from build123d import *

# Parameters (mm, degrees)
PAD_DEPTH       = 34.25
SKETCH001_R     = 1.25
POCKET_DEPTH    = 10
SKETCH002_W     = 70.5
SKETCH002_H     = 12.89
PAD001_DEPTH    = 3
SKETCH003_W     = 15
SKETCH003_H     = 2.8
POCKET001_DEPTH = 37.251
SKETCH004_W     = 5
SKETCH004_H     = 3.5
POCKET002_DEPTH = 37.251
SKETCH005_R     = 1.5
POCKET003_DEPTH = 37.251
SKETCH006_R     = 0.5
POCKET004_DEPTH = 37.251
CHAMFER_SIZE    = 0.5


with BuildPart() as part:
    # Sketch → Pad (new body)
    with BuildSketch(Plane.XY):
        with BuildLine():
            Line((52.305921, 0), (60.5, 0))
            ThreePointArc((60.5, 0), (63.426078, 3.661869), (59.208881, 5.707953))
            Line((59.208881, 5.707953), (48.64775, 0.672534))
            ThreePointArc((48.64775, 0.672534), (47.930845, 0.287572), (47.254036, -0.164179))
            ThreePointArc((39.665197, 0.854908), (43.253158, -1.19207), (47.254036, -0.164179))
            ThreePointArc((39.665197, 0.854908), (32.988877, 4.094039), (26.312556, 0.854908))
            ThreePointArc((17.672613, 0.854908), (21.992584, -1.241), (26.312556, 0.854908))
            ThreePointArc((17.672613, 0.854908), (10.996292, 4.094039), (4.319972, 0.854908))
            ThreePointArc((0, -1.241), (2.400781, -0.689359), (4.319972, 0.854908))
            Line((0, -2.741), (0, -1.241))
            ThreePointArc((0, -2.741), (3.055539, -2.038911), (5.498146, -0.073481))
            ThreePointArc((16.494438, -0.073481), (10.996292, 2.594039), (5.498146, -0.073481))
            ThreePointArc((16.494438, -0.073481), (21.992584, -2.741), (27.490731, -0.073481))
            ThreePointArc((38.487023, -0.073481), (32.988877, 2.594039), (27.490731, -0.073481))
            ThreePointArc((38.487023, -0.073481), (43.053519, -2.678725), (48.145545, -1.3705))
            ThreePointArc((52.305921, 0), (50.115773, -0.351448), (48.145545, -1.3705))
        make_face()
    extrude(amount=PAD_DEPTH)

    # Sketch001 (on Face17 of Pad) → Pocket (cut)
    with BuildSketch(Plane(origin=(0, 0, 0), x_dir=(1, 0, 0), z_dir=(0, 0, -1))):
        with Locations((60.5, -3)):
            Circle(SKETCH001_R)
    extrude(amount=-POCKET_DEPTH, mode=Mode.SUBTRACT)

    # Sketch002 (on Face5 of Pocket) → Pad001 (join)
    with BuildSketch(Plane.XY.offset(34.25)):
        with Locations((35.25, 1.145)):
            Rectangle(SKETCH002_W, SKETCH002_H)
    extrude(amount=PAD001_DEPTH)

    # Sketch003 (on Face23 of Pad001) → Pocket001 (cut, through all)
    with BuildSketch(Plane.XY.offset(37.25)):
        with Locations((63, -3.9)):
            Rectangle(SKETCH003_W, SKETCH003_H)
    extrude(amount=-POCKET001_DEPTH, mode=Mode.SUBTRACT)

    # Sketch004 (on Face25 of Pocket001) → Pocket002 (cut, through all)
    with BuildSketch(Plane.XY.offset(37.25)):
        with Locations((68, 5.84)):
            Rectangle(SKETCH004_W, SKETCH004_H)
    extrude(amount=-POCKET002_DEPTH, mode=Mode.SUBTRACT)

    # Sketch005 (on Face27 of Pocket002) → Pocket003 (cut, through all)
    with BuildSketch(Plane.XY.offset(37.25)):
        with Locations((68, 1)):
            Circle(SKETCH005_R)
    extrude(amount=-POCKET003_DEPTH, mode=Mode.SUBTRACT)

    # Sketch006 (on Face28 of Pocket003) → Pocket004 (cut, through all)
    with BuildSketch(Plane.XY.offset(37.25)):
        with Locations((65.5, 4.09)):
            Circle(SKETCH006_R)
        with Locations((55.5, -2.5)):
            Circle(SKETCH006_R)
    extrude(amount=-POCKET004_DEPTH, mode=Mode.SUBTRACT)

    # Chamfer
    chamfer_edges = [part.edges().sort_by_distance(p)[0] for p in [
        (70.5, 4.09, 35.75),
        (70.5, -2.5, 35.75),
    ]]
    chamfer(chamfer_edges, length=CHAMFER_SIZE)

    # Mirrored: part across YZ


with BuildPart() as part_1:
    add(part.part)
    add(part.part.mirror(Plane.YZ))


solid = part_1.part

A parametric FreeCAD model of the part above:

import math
import FreeCAD as App
import Part
import Sketcher


def edges_at(feature, points):
    """Names of the edges that pass closest to the given points."""
    edges = feature.Shape.Edges
    near = lambda p: min(range(len(edges)), key=lambda i: edges[i].distToShape(Part.Vertex(*p))[0])
    return sorted({f"Edge{near(p) + 1}" for p in points})


def add_polygon(sketch, points):
    """Adds a closed chain of lines whose ends are joined by coincident constraints."""
    first, n = sketch.GeometryCount, len(points)
    for a, b in zip(points, points[1:] + points[:1]):
        sketch.addGeometry(Part.LineSegment(App.Vector(*a, 0), App.Vector(*b, 0)), False)
    for i in range(n):
        sketch.addConstraint(Sketcher.Constraint("Coincident", first + i, 2, first + (i + 1) % n, 1))

doc = App.newDocument("Part")
body = doc.addObject("PartDesign::Body", "Body")

# Sketch on XY plane
sketch1 = body.newObject("Sketcher::SketchObject", "Sketch")
sketch1.AttachmentSupport = (doc.getObject("XY_Plane"), [""])
sketch1.MapMode = "FlatFace"
sketch1.addGeometry([
    Part.LineSegment(App.Vector(52.3, 0, 0), App.Vector(60.5, 0, 0)),  # 0
    Part.ArcOfCircle(Part.Circle(App.Vector(60.5, 3, 0), App.Vector(0, 0, 1), 3), math.radians(-90), math.radians(115)),  # 1
    Part.LineSegment(App.Vector(59.2, 5.7, 0), App.Vector(48.6, 0.7, 0)),  # 2
    Part.ArcOfCircle(Part.Circle(App.Vector(52.3, -7, 0), App.Vector(0, 0, 1), 8.5), math.radians(115.49), math.radians(126.47)),  # 3
    Part.ArcOfCircle(Part.Circle(App.Vector(44, 4.3, 0), App.Vector(0, 0, 1), 5.5), math.radians(-142), math.radians(-54)),  # 4
    Part.ArcOfCircle(Part.Circle(App.Vector(33, -4.4, 0), App.Vector(0, 0, 1), 8.5), math.radians(38), math.radians(142)),  # 5
    Part.ArcOfCircle(Part.Circle(App.Vector(22, 4.3, 0), App.Vector(0, 0, 1), 5.5), math.radians(-142), math.radians(-38)),  # 6
    Part.ArcOfCircle(Part.Circle(App.Vector(11, -4.4, 0), App.Vector(0, 0, 1), 8.5), math.radians(38), math.radians(142)),  # 7
    Part.ArcOfCircle(Part.Circle(App.Vector(0, 4.3, 0), App.Vector(0, 0, 1), 5.5), math.radians(-90), math.radians(-38)),  # 8
    Part.LineSegment(App.Vector(0, -1.2, 0), App.Vector(0, -2.7, 0)),  # 9
    Part.ArcOfCircle(Part.Circle(App.Vector(0, 4.3, 0), App.Vector(0, 0, 1), 7), math.radians(-90), math.radians(-38)),  # 10
    Part.ArcOfCircle(Part.Circle(App.Vector(11, -4.4, 0), App.Vector(0, 0, 1), 7), math.radians(38), math.radians(142)),  # 11
    Part.ArcOfCircle(Part.Circle(App.Vector(22, 4.3, 0), App.Vector(0, 0, 1), 7), math.radians(-142), math.radians(-38)),  # 12
    Part.ArcOfCircle(Part.Circle(App.Vector(33, -4.4, 0), App.Vector(0, 0, 1), 7), math.radians(38), math.radians(142)),  # 13
    Part.ArcOfCircle(Part.Circle(App.Vector(44, 4.3, 0), App.Vector(0, 0, 1), 7), math.radians(-142), math.radians(-54)),  # 14
    Part.ArcOfCircle(Part.Circle(App.Vector(52.3, -7, 0), App.Vector(0, 0, 1), 7), math.radians(90), math.radians(126)),  # 15
], False)
sketch1.addConstraint([
    Sketcher.Constraint("Tangent", 0, 2, 1, 1),
    Sketcher.Constraint("Tangent", 1, 2, 2, 1),
    Sketcher.Constraint("Tangent", 2, 2, 3, 1),
    Sketcher.Constraint("Tangent", 3, 2, 4, 2),
    Sketcher.Constraint("Tangent", 4, 1, 5, 1),
    Sketcher.Constraint("Tangent", 5, 2, 6, 2),
    Sketcher.Constraint("Tangent", 6, 1, 7, 1),
    Sketcher.Constraint("Tangent", 7, 2, 8, 2),
    Sketcher.Constraint("Coincident", 8, 1, 9, 1),
    Sketcher.Constraint("Coincident", 9, 2, 10, 1),
    Sketcher.Constraint("Tangent", 10, 2, 11, 2),
    Sketcher.Constraint("Tangent", 11, 1, 12, 1),
    Sketcher.Constraint("Tangent", 12, 2, 13, 2),
    Sketcher.Constraint("Tangent", 13, 1, 14, 1),
    Sketcher.Constraint("Tangent", 14, 2, 15, 2),
    Sketcher.Constraint("Tangent", 15, 1, 0, 1),
    Sketcher.Constraint("Horizontal", 0),
    Sketcher.Constraint("Vertical", 9),
    Sketcher.Constraint("Coincident", 10, 3, 8, 3),
    Sketcher.Constraint("Coincident", 11, 3, 7, 3),
    Sketcher.Constraint("Coincident", 12, 3, 6, 3),
    Sketcher.Constraint("Coincident", 13, 3, 5, 3),
    Sketcher.Constraint("Coincident", 14, 3, 4, 3),
    Sketcher.Constraint("Equal", 4, 6),
    Sketcher.Constraint("Equal", 5, 7),
    Sketcher.Constraint("Equal", 10, 11),
    Sketcher.Constraint("Equal", 10, 12),
    Sketcher.Constraint("PointOnObject", 10, 3, -2),
    Sketcher.Constraint("PointOnObject", 0, 2, -1),
    Sketcher.Constraint("PointOnObject", 8, 1, -2),
    Sketcher.Constraint("Horizontal", 4, 3, 6, 3),
    Sketcher.Constraint("Horizontal", 5, 3, 7, 3),
    Sketcher.Constraint("Horizontal", 6, 3, 10, 3),
    Sketcher.Constraint("Radius", 1, 3.0),
    Sketcher.Constraint("Radius", 10, 6.999999),
    Sketcher.Constraint("Radius", 4, 5.5),
    Sketcher.Constraint("DistanceX", -1, 1, 1, 3, 60.500001),
    Sketcher.Constraint("Radius", 3, 8.499952),
    Sketcher.Constraint("Radius", 15, 7.00001),
    Sketcher.Constraint("DistanceY", -1, 1, 4, 3, 4.258999),
    Sketcher.Constraint("DistanceY", 3, 3, 13, 3, 2.593999),
    Sketcher.Constraint("DistanceX", 0, 1, 0, 2, 8.194079),
])
pad1 = body.newObject("PartDesign::Pad", "Pad")
pad1.Profile = sketch1
pad1.Length = 34.25

# Sketch on XY plane
sketch2 = body.newObject("Sketcher::SketchObject", "Sketch001")
sketch2.AttachmentSupport = (doc.getObject("XY_Plane"), [""])
sketch2.MapMode = "FlatFace"
sketch2.addGeometry(Part.Circle(App.Vector(60.5, 3, 0), App.Vector(0, 0, 1), 1.2), False)
sketch2.addConstraint([
    Sketcher.Constraint("Diameter", 0, 2.5),
    Sketcher.Constraint("DistanceY", -1, 1, 0, 3, 3.0),
    Sketcher.Constraint("DistanceX", -1, 1, 0, 3, 60.5),
])
pocket1 = body.newObject("PartDesign::Pocket", "Pocket")
pocket1.Profile = sketch2
pocket1.Length = 10
pocket1.Reversed = True

# Sketch on XY plane
sketch3 = body.newObject("Sketcher::SketchObject", "Sketch002")
sketch3.AttachmentSupport = (doc.getObject("XY_Plane"), [""])
sketch3.MapMode = "FlatFace"
sketch3.AttachmentOffset = App.Placement(App.Vector(0, 0, 34.25), App.Rotation())
add_polygon(sketch3, [(0, 8), (0, -5), (70, -5), (70, 8)])  # lines 0-3
sketch3.addConstraint([
    Sketcher.Constraint("Vertical", 0),
    Sketcher.Constraint("Horizontal", 1),
    Sketcher.Constraint("Vertical", 2),
    Sketcher.Constraint("Horizontal", 3),
    Sketcher.Constraint("PointOnObject", 0, 2, -2),
    Sketcher.Constraint("DistanceX", 1, 1, 1, 2, 70.5),
    Sketcher.Constraint("DistanceY", 0, 2, 0, 1, 12.89),
    Sketcher.Constraint("DistanceY", 0, 2, -1, 1, 5.3),
])
pad2 = body.newObject("PartDesign::Pad", "Pad001")
pad2.Profile = sketch3
pad2.Length = 3

# Sketch on XY plane
sketch4 = body.newObject("Sketcher::SketchObject", "Sketch003")
sketch4.AttachmentSupport = (doc.getObject("XY_Plane"), [""])
sketch4.MapMode = "FlatFace"
sketch4.AttachmentOffset = App.Placement(App.Vector(0, 0, 37.25), App.Rotation())
add_polygon(sketch4, [(55.5, -2.5), (55.5, -5.3), (70.5, -5.3), (70.5, -2.5)])  # lines 0-3
sketch4.addConstraint([
    Sketcher.Constraint("Vertical", 0),
    Sketcher.Constraint("Horizontal", 1),
    Sketcher.Constraint("Vertical", 2),
    Sketcher.Constraint("Horizontal", 3),
    Sketcher.Constraint("DistanceX", 1, 1, 1, 2, 15.0),
    Sketcher.Constraint("DistanceY", 0, 2, 0, 1, 2.8),
    Sketcher.Constraint("DistanceX", -1, 1, 0, 2, 55.5),
    Sketcher.Constraint("DistanceY", 0, 2, -1, 1, 5.3),
])
pocket2 = body.newObject("PartDesign::Pocket", "Pocket001")
pocket2.Profile = sketch4
pocket2.Type = "ThroughAll"

# Sketch on XY plane
sketch5 = body.newObject("Sketcher::SketchObject", "Sketch004")
sketch5.AttachmentSupport = (doc.getObject("XY_Plane"), [""])
sketch5.MapMode = "FlatFace"
sketch5.AttachmentOffset = App.Placement(App.Vector(0, 0, 37.25), App.Rotation())
add_polygon(sketch5, [(65.5, 7.6), (65.5, 4.1), (70.5, 4.1), (70.5, 7.6)])  # lines 0-3
sketch5.addConstraint([
    Sketcher.Constraint("Vertical", 0),
    Sketcher.Constraint("Horizontal", 1),
    Sketcher.Constraint("Vertical", 2),
    Sketcher.Constraint("Horizontal", 3),
    Sketcher.Constraint("DistanceX", 1, 1, 1, 2, 5.0),
    Sketcher.Constraint("DistanceY", 0, 2, 0, 1, 3.5),
    Sketcher.Constraint("DistanceX", -1, 1, 0, 2, 65.5),
    Sketcher.Constraint("DistanceY", -1, 1, 0, 2, 4.09),
])
pocket3 = body.newObject("PartDesign::Pocket", "Pocket002")
pocket3.Profile = sketch5
pocket3.Type = "ThroughAll"

# Sketch on XY plane
sketch6 = body.newObject("Sketcher::SketchObject", "Sketch005")
sketch6.AttachmentSupport = (doc.getObject("XY_Plane"), [""])
sketch6.MapMode = "FlatFace"
sketch6.AttachmentOffset = App.Placement(App.Vector(0, 0, 37.25), App.Rotation())
sketch6.addGeometry(Part.Circle(App.Vector(68, 1, 0), App.Vector(0, 0, 1), 1.5), False)
sketch6.addConstraint([
    Sketcher.Constraint("Diameter", 0, 3.0),
    Sketcher.Constraint("DistanceX", -1, 1, 0, 3, 68.0),
    Sketcher.Constraint("DistanceY", -1, 1, 0, 3, 1.0),
])
pocket4 = body.newObject("PartDesign::Pocket", "Pocket003")
pocket4.Profile = sketch6
pocket4.Type = "ThroughAll"

# Sketch on XY plane
sketch7 = body.newObject("Sketcher::SketchObject", "Sketch006")
sketch7.AttachmentSupport = (doc.getObject("XY_Plane"), [""])
sketch7.MapMode = "FlatFace"
sketch7.AttachmentOffset = App.Placement(App.Vector(0, 0, 37.25), App.Rotation())
sketch7.addGeometry([
    Part.Circle(App.Vector(65.5, 4.1, 0), App.Vector(0, 0, 1), 0.5),
    Part.Circle(App.Vector(55.5, -2.5, 0), App.Vector(0, 0, 1), 0.5),
], False)
sketch7.addConstraint([
    Sketcher.Constraint("Equal", 0, 1),
    Sketcher.Constraint("Diameter", 0, 1.0),
    Sketcher.Constraint("DistanceX", 1, 3, 0, 3, 10.0),
    Sketcher.Constraint("DistanceX", -1, 1, 0, 3, 65.5),
    Sketcher.Constraint("DistanceY", 1, 3, -1, 1, 2.5),
    Sketcher.Constraint("DistanceY", -1, 1, 0, 3, 4.09),
])
pocket5 = body.newObject("PartDesign::Pocket", "Pocket004")
pocket5.Profile = sketch7
pocket5.Type = "ThroughAll"
doc.recompute()

chamfer = body.newObject("PartDesign::Chamfer", "Chamfer")
chamfer.Base = (pocket5, edges_at(pocket5, [(70.5, 4.09, 35.75), (70.5, -2.5, 35.75)]))
chamfer.Size = 0.5
body2 = doc.addObject("PartDesign::Body", "Body001")
doc.recompute()

body2.BaseFeature = body
doc.recompute()

mirroring = doc.addObject("Part::Mirroring", "Mirroring")
mirroring.Source = body
mirroring.Base = App.Vector(0, 0, 0)
mirroring.Normal = App.Vector(1, 0, 0)
body3 = doc.addObject("PartDesign::Body", "Body002")
body3.BaseFeature = mirroring
boolean = body2.newObject("PartDesign::Boolean", "Boolean")
boolean.Type = "Fuse"
boolean.addObjects([body3])
doc.recompute()
mirroring.Visibility = False

doc.recompute()
